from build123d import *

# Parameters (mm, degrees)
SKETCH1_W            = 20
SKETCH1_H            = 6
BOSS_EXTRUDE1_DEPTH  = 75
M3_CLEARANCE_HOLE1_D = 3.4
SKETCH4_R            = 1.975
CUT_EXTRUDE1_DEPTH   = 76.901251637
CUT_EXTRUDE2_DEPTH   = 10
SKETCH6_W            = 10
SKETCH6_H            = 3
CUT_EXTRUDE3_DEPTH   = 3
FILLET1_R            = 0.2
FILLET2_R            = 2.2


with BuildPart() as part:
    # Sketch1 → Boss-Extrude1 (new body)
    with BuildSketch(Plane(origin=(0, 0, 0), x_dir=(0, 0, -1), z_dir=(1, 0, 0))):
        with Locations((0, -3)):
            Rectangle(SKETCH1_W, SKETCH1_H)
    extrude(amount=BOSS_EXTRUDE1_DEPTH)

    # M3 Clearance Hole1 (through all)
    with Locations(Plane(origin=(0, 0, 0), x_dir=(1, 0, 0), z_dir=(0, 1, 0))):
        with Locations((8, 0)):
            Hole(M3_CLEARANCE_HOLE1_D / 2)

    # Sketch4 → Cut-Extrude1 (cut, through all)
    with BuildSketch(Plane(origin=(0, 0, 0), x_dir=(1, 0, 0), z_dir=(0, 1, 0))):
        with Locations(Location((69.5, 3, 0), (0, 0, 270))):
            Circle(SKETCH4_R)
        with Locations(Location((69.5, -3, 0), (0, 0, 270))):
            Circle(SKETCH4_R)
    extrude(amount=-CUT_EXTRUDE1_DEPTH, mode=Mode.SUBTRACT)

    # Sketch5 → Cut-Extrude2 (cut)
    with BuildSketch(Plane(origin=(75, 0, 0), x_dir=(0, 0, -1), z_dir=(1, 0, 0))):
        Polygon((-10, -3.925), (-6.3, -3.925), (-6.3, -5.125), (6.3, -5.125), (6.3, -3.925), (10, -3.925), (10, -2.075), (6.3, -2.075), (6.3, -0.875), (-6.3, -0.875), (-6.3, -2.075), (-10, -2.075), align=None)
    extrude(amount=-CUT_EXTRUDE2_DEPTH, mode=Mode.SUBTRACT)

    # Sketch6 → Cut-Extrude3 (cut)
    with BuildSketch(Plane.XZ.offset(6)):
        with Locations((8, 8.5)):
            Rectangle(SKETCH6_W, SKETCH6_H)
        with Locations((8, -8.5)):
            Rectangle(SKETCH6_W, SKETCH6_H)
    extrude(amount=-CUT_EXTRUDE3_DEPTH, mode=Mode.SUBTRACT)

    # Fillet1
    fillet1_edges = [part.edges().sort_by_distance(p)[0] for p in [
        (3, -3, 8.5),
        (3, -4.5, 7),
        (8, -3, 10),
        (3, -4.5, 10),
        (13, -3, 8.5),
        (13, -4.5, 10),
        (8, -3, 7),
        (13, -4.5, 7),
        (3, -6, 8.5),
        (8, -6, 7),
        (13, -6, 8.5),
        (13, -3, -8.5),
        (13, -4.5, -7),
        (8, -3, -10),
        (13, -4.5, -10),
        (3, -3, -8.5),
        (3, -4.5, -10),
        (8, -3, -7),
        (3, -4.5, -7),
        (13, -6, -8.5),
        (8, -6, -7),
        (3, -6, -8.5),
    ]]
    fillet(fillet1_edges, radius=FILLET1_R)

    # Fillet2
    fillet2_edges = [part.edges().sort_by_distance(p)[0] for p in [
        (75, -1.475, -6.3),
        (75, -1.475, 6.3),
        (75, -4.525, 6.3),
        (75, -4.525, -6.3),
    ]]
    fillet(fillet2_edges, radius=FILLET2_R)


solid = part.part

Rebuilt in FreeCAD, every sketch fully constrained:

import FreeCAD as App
import Part
import Sketcher
from FreeCAD import Vector


def edges_at(feature, points):
    """Names of the edges that pass closest to the given points."""
    edges = feature.Shape.Edges
    near = lambda p: min(range(len(edges)), key=lambda i: edges[i].distToShape(Part.Vertex(*p))[0])
    return sorted({f"Edge{near(p) + 1}" for p in points})

doc = App.newDocument("Part")
body = doc.addObject("PartDesign::Body", "Body")

# Sketch on YZ plane
sketch1 = body.newObject("Sketcher::SketchObject", "Sketch")
sketch1.AttachmentSupport = (doc.getObject("YZ_Plane"), [""])
sketch1.MapMode = "FlatFace"
sketch1.addGeometry(Part.LineSegment(Vector(0, 10, 0), Vector(-6, 10, 0)), False)
sketch1.addGeometry(Part.LineSegment(Vector(-6, 10, 0), Vector(-6, -10, 0)), False)
sketch1.addGeometry(Part.LineSegment(Vector(-6, -10, 0), Vector(0, -10, 0)), False)
sketch1.addGeometry(Part.LineSegment(Vector(0, -10, 0), Vector(0, 10, 0)), False)
sketch1.addConstraint(Sketcher.Constraint("Coincident", 0, 2, 1, 1))
sketch1.addConstraint(Sketcher.Constraint("Coincident", 1, 2, 2, 1))
sketch1.addConstraint(Sketcher.Constraint("Coincident", 2, 2, 3, 1))
sketch1.addConstraint(Sketcher.Constraint("Coincident", 3, 2, 0, 1))
sketch1.addConstraint(Sketcher.Constraint("Horizontal", 0))
sketch1.addConstraint(Sketcher.Constraint("Vertical", 1))
sketch1.addConstraint(Sketcher.Constraint("Horizontal", 2))
sketch1.addConstraint(Sketcher.Constraint("Vertical", 3))
sketch1.addConstraint(Sketcher.Constraint("Symmetric", 2, 2, 3, 2, -1, 1))
sketch1.addConstraint(Sketcher.Constraint("DistanceX", 0, 2, 0, 1, 6.0))
sketch1.addConstraint(Sketcher.Constraint("DistanceY", 1, 2, 1, 1, 20.0))
pad1 = body.newObject("PartDesign::Pad", "Pad")
pad1.Profile = sketch1
pad1.Length = 75

# Sketch on XZ plane
sketch2 = body.newObject("Sketcher::SketchObject", "Sketch001")
sketch2.AttachmentSupport = (doc.getObject("XZ_Plane"), [""])
sketch2.MapMode = "FlatFace"
sketch2.addGeometry(Part.Circle(Vector(8, 0, 0), Vector(0, 0, 1), 1.7), False)
sketch2.addConstraint(Sketcher.Constraint("PointOnObject", 0, 3, -1))
sketch2.addConstraint(Sketcher.Constraint("Diameter", 0, 3.4))
sketch2.addConstraint(Sketcher.Constraint("DistanceX", -1, 1, 0, 3, 8.0))
doc.recompute()
hole = body.newObject("PartDesign::Hole", "Hole")
hole.Profile = sketch2
hole.ThreadType = "None"
hole.Diameter = 3.4
hole.DepthType = "ThroughAll"
hole.Reversed = True

# Sketch on XZ plane
sketch3 = body.newObject("Sketcher::SketchObject", "Sketch002")
sketch3.AttachmentSupport = (doc.getObject("XZ_Plane"), [""])
sketch3.MapMode = "FlatFace"
sketch3.addGeometry(Part.Circle(Vector(69.5, -3, 0), Vector(0, 0, 1), 1.975), False)
sketch3.addGeometry(Part.Circle(Vector(69.5, 3, 0), Vector(0, 0, 1), 1.975), False)
sketch3.addConstraint(Sketcher.Constraint("Equal", 0, 1))
sketch3.addConstraint(Sketcher.Constraint("Symmetric", 0, 3, 1, 3, -1))
sketch3.addConstraint(Sketcher.Constraint("Diameter", 0, 3.95))
sketch3.addConstraint(Sketcher.Constraint("DistanceY", 0, 3, -1, 1, 3.0))
sketch3.addConstraint(Sketcher.Constraint("DistanceX", -1, 1, 0, 3, 69.5))
pocket1 = body.newObject("PartDesign::Pocket", "Pocket")
pocket1.Profile = sketch3
pocket1.Type = "ThroughAll"
pocket1.Reversed = True

# Sketch on YZ plane
sketch4 = body.newObject("Sketcher::SketchObject", "Sketch003")
sketch4.AttachmentSupport = (doc.getObject("YZ_Plane"), [""])
sketch4.MapMode = "FlatFace"
sketch4.AttachmentOffset = App.Placement(Vector(0, 0, 75), App.Rotation())
sketch4.addGeometry(Part.LineSegment(Vector(-3.925, 10, 0), Vector(-3.925, 6.3, 0)), False)
sketch4.addGeometry(Part.LineSegment(Vector(-3.925, 6.3, 0), Vector(-5.125, 6.3, 0)), False)
sketch4.addGeometry(Part.LineSegment(Vector(-5.125, 6.3, 0), Vector(-5.125, -6.3, 0)), False)
sketch4.addGeometry(Part.LineSegment(Vector(-5.125, -6.3, 0), Vector(-3.925, -6.3, 0)), False)
sketch4.addGeometry(Part.LineSegment(Vector(-3.925, -6.3, 0), Vector(-3.925, -10, 0)), False)
sketch4.addGeometry(Part.LineSegment(Vector(-3.925, -10, 0), Vector(-2.075, -10, 0)), False)
sketch4.addGeometry(Part.LineSegment(Vector(-2.075, -10, 0), Vector(-2.075, -6.3, 0)), False)
sketch4.addGeometry(Part.LineSegment(Vector(-2.075, -6.3, 0), Vector(-0.875, -6.3, 0)), False)
sketch4.addGeometry(Part.LineSegment(Vector(-0.875, -6.3, 0), Vector(-0.875, 6.3, 0)), False)
sketch4.addGeometry(Part.LineSegment(Vector(-0.875, 6.3, 0), Vector(-2.075, 6.3, 0)), False)
sketch4.addGeometry(Part.LineSegment(Vector(-2.075, 6.3, 0), Vector(-2.075, 10, 0)), False)
sketch4.addGeometry(Part.LineSegment(Vector(-2.075, 10, 0), Vector(-3.925, 10, 0)), False)
sketch4.addConstraint(Sketcher.Constraint("Coincident", 0, 2, 1, 1))
sketch4.addConstraint(Sketcher.Constraint("Coincident", 1, 2, 2, 1))
sketch4.addConstraint(Sketcher.Constraint("Coincident", 2, 2, 3, 1))
sketch4.addConstraint(Sketcher.Constraint("Coincident", 3, 2, 4, 1))
sketch4.addConstraint(Sketcher.Constraint("Coincident", 4, 2, 5, 1))
sketch4.addConstraint(Sketcher.Constraint("Coincident", 5, 2, 6, 1))
sketch4.addConstraint(Sketcher.Constraint("Coincident", 6, 2, 7, 1))
sketch4.addConstraint(Sketcher.Constraint("Coincident", 7, 2, 8, 1))
sketch4.addConstraint(Sketcher.Constraint("Coincident", 8, 2, 9, 1))
sketch4.addConstraint(Sketcher.Constraint("Coincident", 9, 2, 10, 1))
sketch4.addConstraint(Sketcher.Constraint("Coincident", 10, 2, 11, 1))
sketch4.addConstraint(Sketcher.Constraint("Coincident", 11, 2, 0, 1))
sketch4.addConstraint(Sketcher.Constraint("Vertical", 0))
sketch4.addConstraint(Sketcher.Constraint("Horizontal", 1))
sketch4.addConstraint(Sketcher.Constraint("Vertical", 2))
sketch4.addConstraint(Sketcher.Constraint("Horizontal", 3))
sketch4.addConstraint(Sketcher.Constraint("Vertical", 4))
sketch4.addConstraint(Sketcher.Constraint("Horizontal", 5))
sketch4.addConstraint(Sketcher.Constraint("Vertical", 6))
sketch4.addConstraint(Sketcher.Constraint("Horizontal", 7))
sketch4.addConstraint(Sketcher.Constraint("Vertical", 8))
sketch4.addConstraint(Sketcher.Constraint("Horizontal", 9))
sketch4.addConstraint(Sketcher.Constraint("Vertical", 10))
sketch4.addConstraint(Sketcher.Constraint("Horizontal", 11))
sketch4.addConstraint(Sketcher.Constraint("Symmetric", 0, 2, 3, 2, -1))
sketch4.addConstraint(Sketcher.Constraint("Symmetric", 6, 2, 9, 2, -1))
sketch4.addConstraint(Sketcher.Constraint("Horizontal", 3, 2, 6, 2))
sketch4.addConstraint(Sketcher.Constraint("Equal", 3, 7))
sketch4.addConstraint(Sketcher.Constraint("Equal", 0, 4))
sketch4.addConstraint(Sketcher.Constraint("DistanceX", 1, 2, 1, 1, 1.2))
sketch4.addConstraint(Sketcher.Constraint("DistanceY", 0, 2, 0, 1, 3.7))
sketch4.addConstraint(Sketcher.Constraint("DistanceY", 2, 2, 2, 1, 12.6))
sketch4.addConstraint(Sketcher.Constraint("DistanceX", 5, 1, 5, 2, 1.85))
sketch4.addConstraint(Sketcher.Constraint("DistanceX", 0, 2, -1, 1, 3.925))
pocket2 = body.newObject("PartDesign::Pocket", "Pocket001")
pocket2.Profile = sketch4
pocket2.Length = 10

# Sketch on XZ plane
sketch5 = body.newObject("Sketcher::SketchObject", "Sketch004")
sketch5.AttachmentSupport = (doc.getObject("XZ_Plane"), [""])
sketch5.MapMode = "FlatFace"
sketch5.AttachmentOffset = App.Placement(Vector(0, 0, 6), App.Rotation())
sketch5.addGeometry(Part.LineSegment(Vector(3, 10, 0), Vector(3, 7, 0)), False)
sketch5.addGeometry(Part.LineSegment(Vector(3, 7, 0), Vector(13, 7, 0)), False)
sketch5.addGeometry(Part.LineSegment(Vector(13, 7, 0), Vector(13, 10, 0)), False)
sketch5.addGeometry(Part.LineSegment(Vector(13, 10, 0), Vector(3, 10, 0)), False)
sketch5.addGeometry(Part.LineSegment(Vector(3, -7, 0), Vector(3, -10, 0)), False)
sketch5.addGeometry(Part.LineSegment(Vector(3, -10, 0), Vector(13, -10, 0)), False)
sketch5.addGeometry(Part.LineSegment(Vector(13, -10, 0), Vector(13, -7, 0)), False)
sketch5.addGeometry(Part.LineSegment(Vector(13, -7, 0), Vector(3, -7, 0)), False)
sketch5.addConstraint(Sketcher.Constraint("Coincident", 0, 2, 1, 1))
sketch5.addConstraint(Sketcher.Constraint("Coincident", 1, 2, 2, 1))
sketch5.addConstraint(Sketcher.Constraint("Coincident", 2, 2, 3, 1))
sketch5.addConstraint(Sketcher.Constraint("Coincident", 3, 2, 0, 1))
sketch5.addConstraint(Sketcher.Constraint("Coincident", 4, 2, 5, 1))
sketch5.addConstraint(Sketcher.Constraint("Coincident", 5, 2, 6, 1))
sketch5.addConstraint(Sketcher.Constraint("Coincident", 6, 2, 7, 1))
sketch5.addConstraint(Sketcher.Constraint("Coincident", 7, 2, 4, 1))
sketch5.addConstraint(Sketcher.Constraint("Vertical", 0))
sketch5.addConstraint(Sketcher.Constraint("Horizontal", 1))
sketch5.addConstraint(Sketcher.Constraint("Vertical", 2))
sketch5.addConstraint(Sketcher.Constraint("Horizontal", 3))
sketch5.addConstraint(Sketcher.Constraint("Vertical", 4))
sketch5.addConstraint(Sketcher.Constraint("Horizontal", 5))
sketch5.addConstraint(Sketcher.Constraint("Vertical", 6))
sketch5.addConstraint(Sketcher.Constraint("Horizontal", 7))
sketch5.addConstraint(Sketcher.Constraint("Symmetric", 3, 2, 4, 2, -1))
sketch5.addConstraint(Sketcher.Constraint("Symmetric", 1, 2, 6, 2, -1))
sketch5.addConstraint(Sketcher.Constraint("DistanceX", 1, 1, 1, 2, 10.0))
sketch5.addConstraint(Sketcher.Constraint("DistanceY", 0, 2, 0, 1, 3.0))
sketch5.addConstraint(Sketcher.Constraint("DistanceX", -1, 1, 0, 2, 3.0))
sketch5.addConstraint(Sketcher.Constraint("DistanceY", -1, 1, 0, 2, 7.0))
pocket3 = body.newObject("PartDesign::Pocket", "Pocket002")
pocket3.Profile = sketch5
pocket3.Length = 3
doc.recompute()

fillet = body.newObject("PartDesign::Fillet", "Fillet")
fillet.Base = (pocket3, edges_at(pocket3, [
    (3, -3, 8.5),
    (3, -4.5, 7),
    (8, -3, 10),
    (3, -4.5, 10),
    (13, -3, 8.5),
    (13, -4.5, 10),
    (8, -3, 7),
    (13, -4.5, 7),
    (3, -6, 8.5),
    (8, -6, 7),
    (13, -6, 8.5),
    (13, -3, -8.5),
    (13, -4.5, -7),
    (8, -3, -10),
    (13, -4.5, -10),
    (3, -3, -8.5),
    (3, -4.5, -10),
    (8, -3, -7),
    (3, -4.5, -7),
    (13, -6, -8.5),
    (8, -6, -7),
    (3, -6, -8.5),
]))
fillet.Radius = 0.2
doc.recompute()

fillet2 = body.newObject("PartDesign::Fillet", "Fillet001")
fillet2.Base = (fillet, edges_at(fillet, [
    (75, -1.475, -6.3),
    (75, -1.475, 6.3),
    (75, -4.525, 6.3),
    (75, -4.525, -6.3),
]))
fillet2.Radius = 2.2

doc.recompute()
